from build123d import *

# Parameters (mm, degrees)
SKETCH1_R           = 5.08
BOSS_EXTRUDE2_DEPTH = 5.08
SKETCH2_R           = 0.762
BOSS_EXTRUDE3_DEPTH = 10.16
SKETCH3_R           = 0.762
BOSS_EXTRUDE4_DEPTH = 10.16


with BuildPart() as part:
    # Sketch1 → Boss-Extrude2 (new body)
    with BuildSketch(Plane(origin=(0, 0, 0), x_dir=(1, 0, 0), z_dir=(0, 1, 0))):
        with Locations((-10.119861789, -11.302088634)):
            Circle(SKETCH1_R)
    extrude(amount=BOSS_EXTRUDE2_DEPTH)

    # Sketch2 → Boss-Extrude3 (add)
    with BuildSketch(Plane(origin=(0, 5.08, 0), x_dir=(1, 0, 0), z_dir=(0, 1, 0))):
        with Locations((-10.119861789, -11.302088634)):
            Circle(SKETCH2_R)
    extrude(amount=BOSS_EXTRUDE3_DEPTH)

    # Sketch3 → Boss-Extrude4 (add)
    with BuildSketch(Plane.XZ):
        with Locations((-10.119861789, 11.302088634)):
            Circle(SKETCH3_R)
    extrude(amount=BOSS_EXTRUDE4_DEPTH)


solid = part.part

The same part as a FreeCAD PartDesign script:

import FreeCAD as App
import Part
import Sketcher

V = App.Vector
Q = App.Units.Quantity

doc = App.newDocument("Part")
body = doc.addObject("PartDesign::Body", "Body")

# Sketch on XZ plane
sketch1 = body.newObject("Sketcher::SketchObject", "Sketch")
sketch1.AttachmentSupport = (doc.getObject("XZ_Plane"), [""])
sketch1.MapMode = "FlatFace"
sketch1.addGeometry(Part.Circle(V(-10.119862, 11.302089, 0), V(0, 0, 1), 5.08), False)
sketch1.addConstraint([
    Sketcher.Constraint("Diameter", 0, Q("0.4 in")),
    Sketcher.Constraint("DistanceX", 0, 3, -1, 1, 10.119862),
    Sketcher.Constraint("DistanceY", -1, 1, 0, 3, 11.302089),
])
pad1 = body.newObject("PartDesign::Pad", "Pad")
pad1.Profile = sketch1
pad1.Length = Q("0.2 in")
pad1.Reversed = True

# Sketch on XZ plane
sketch2 = body.newObject("Sketcher::SketchObject", "Sketch001")
sketch2.AttachmentSupport = (doc.getObject("XZ_Plane"), [""])
sketch2.MapMode = "FlatFace"
sketch2.AttachmentOffset = App.Placement(V(0, 0, -0.2 * 25.4), App.Rotation())
sketch2.addGeometry(Part.Circle(V(-10.119862, 11.302089, 0), V(0, 0, 1), 0.762), False)
sketch2.addConstraint([
    Sketcher.Constraint("Diameter", 0, Q("0.06 in")),
    Sketcher.Constraint("DistanceX", 0, 3, -1, 1, 10.119862),
    Sketcher.Constraint("DistanceY", -1, 1, 0, 3, 11.302089),
])
pad2 = body.newObject("PartDesign::Pad", "Pad001")
pad2.Profile = sketch2
pad2.Length = Q("0.4 in")
pad2.Reversed = True

# Sketch on XZ plane
sketch3 = body.newObject("Sketcher::SketchObject", "Sketch002")
sketch3.AttachmentSupport = (doc.getObject("XZ_Plane"), [""])
sketch3.MapMode = "FlatFace"
sketch3.addGeometry(Part.Circle(V(-10.119862, 11.302089, 0), V(0, 0, 1), 0.762), False)
sketch3.addConstraint([
    Sketcher.Constraint("Diameter", 0, Q("0.06 in")),
    Sketcher.Constraint("DistanceX", 0, 3, -1, 1, 10.119862),
    Sketcher.Constraint("DistanceY", -1, 1, 0, 3, 11.302089),
])
pad3 = body.newObject("PartDesign::Pad", "Pad002")
pad3.Profile = sketch3
pad3.Length = Q("0.4 in")

doc.recompute()
